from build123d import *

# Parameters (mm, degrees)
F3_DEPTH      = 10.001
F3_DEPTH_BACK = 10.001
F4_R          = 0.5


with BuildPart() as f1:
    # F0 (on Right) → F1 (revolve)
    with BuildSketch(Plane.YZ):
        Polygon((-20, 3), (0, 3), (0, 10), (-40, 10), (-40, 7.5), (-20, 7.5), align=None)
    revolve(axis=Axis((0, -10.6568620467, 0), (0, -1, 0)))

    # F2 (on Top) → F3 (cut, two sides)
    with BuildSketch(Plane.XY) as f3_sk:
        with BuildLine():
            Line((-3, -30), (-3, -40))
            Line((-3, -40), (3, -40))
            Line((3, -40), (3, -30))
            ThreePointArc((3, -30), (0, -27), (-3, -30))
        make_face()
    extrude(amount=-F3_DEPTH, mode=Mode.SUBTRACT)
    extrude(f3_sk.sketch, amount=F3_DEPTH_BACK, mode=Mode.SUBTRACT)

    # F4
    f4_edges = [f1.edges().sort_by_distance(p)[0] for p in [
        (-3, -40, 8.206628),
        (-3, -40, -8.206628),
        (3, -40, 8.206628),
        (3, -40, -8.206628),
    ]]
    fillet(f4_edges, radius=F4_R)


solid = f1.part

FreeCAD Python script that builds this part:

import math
import FreeCAD as App
import Part
import Sketcher

V = App.Vector


def edges_at(feature, points):
    """Names of the edges that pass closest to the given points."""
    edges = feature.Shape.Edges
    near = lambda p: min(range(len(edges)), key=lambda i: edges[i].distToShape(Part.Vertex(*p))[0])
    return sorted({f"Edge{near(p) + 1}" for p in points})

doc = App.newDocument("Part")
body = doc.addObject("PartDesign::Body", "Body")

# Sketch on YZ plane
sketch1 = body.newObject("Sketcher::SketchObject", "Sketch")
sketch1.AttachmentSupport = (doc.getObject("YZ_Plane"), [""])
sketch1.MapMode = "FlatFace"
sketch1.addGeometry([
    Part.LineSegment(V(-20, 3, 0), V(0, 3, 0)),  # 0
    Part.LineSegment(V(0, 3, 0), V(0, 10, 0)),  # 1
    Part.LineSegment(V(0, 10, 0), V(-40, 10, 0)),  # 2
    Part.LineSegment(V(-40, 10, 0), V(-40, 7.5, 0)),  # 3
    Part.LineSegment(V(-40, 7.5, 0), V(-20, 7.5, 0)),  # 4
    Part.LineSegment(V(-20, 7.5, 0), V(-20, 3, 0)),  # 5
], False)
sketch1.addConstraint([
    Sketcher.Constraint("Coincident", 0, 2, 1, 1),
    Sketcher.Constraint("Coincident", 1, 2, 2, 1),
    Sketcher.Constraint("Coincident", 2, 2, 3, 1),
    Sketcher.Constraint("Coincident", 3, 2, 4, 1),
    Sketcher.Constraint("Coincident", 4, 2, 5, 1),
    Sketcher.Constraint("Coincident", 5, 2, 0, 1),
    Sketcher.Constraint("Horizontal", 0),
    Sketcher.Constraint("Vertical", 1),
    Sketcher.Constraint("Horizontal", 2),
    Sketcher.Constraint("Vertical", 3),
    Sketcher.Constraint("Horizontal", 4),
    Sketcher.Constraint("Vertical", 5),
    Sketcher.Constraint("PointOnObject", 0, 2, -2),
    Sketcher.Constraint("Equal", 0, 4),
    Sketcher.Constraint("DistanceX", 0, 1, 0, 2, 20.0),
    Sketcher.Constraint("DistanceY", 1, 1, 1, 2, 7.0),
    Sketcher.Constraint("DistanceY", 3, 2, 3, 1, 2.5),
    Sketcher.Constraint("DistanceY", -1, 1, 0, 2, 3.0),
])
revolution = body.newObject("PartDesign::Revolution", "Revolution")
revolution.Profile = sketch1
revolution.ReferenceAxis = (sketch1, ["H_Axis"])
revolution.Angle = 360

# Sketch on XY plane
sketch2 = body.newObject("Sketcher::SketchObject", "Sketch001")
sketch2.AttachmentSupport = (doc.getObject("XY_Plane"), [""])
sketch2.MapMode = "FlatFace"
sketch2.addGeometry([
    Part.LineSegment(V(-3, -30, 0), V(-3, -40, 0)),
    Part.LineSegment(V(-3, -40, 0), V(3, -40, 0)),
    Part.LineSegment(V(3, -40, 0), V(3, -30, 0)),
    Part.ArcOfCircle(Part.Circle(V(0, -30, 0), V(0, 0, 1), 3), math.radians(0), math.radians(180)),
], False)
sketch2.addConstraint([
    Sketcher.Constraint("Coincident", 0, 2, 1, 1),
    Sketcher.Constraint("Coincident", 1, 2, 2, 1),
    Sketcher.Constraint("Tangent", 2, 2, 3, 1),
    Sketcher.Constraint("Tangent", 3, 2, 0, 1),
    Sketcher.Constraint("Vertical", 0),
    Sketcher.Constraint("Horizontal", 1),
    Sketcher.Constraint("Vertical", 2),
    Sketcher.Constraint("PointOnObject", 3, 3, -2),
    Sketcher.Constraint("Radius", 3, 3.0),
    Sketcher.Constraint("DistanceY", 0, 2, 0, 1, 10.0),
    Sketcher.Constraint("DistanceY", 3, 3, -1, 1, 30.0),
])
pocket1 = body.newObject("PartDesign::Pocket", "Pocket")
pocket1.Profile = sketch2
pocket1.Type = "ThroughAll"
pocket1.Midplane = True
doc.recompute()

fillet = body.newObject("PartDesign::Fillet", "Fillet")
fillet.Base = (pocket1, edges_at(pocket1, [
    (-3, -40, 8.207),
    (-3, -40, -8.207),
    (3, -40, 8.207),
    (3, -40, -8.207),
]))
fillet.Radius = 0.5

doc.recompute()
